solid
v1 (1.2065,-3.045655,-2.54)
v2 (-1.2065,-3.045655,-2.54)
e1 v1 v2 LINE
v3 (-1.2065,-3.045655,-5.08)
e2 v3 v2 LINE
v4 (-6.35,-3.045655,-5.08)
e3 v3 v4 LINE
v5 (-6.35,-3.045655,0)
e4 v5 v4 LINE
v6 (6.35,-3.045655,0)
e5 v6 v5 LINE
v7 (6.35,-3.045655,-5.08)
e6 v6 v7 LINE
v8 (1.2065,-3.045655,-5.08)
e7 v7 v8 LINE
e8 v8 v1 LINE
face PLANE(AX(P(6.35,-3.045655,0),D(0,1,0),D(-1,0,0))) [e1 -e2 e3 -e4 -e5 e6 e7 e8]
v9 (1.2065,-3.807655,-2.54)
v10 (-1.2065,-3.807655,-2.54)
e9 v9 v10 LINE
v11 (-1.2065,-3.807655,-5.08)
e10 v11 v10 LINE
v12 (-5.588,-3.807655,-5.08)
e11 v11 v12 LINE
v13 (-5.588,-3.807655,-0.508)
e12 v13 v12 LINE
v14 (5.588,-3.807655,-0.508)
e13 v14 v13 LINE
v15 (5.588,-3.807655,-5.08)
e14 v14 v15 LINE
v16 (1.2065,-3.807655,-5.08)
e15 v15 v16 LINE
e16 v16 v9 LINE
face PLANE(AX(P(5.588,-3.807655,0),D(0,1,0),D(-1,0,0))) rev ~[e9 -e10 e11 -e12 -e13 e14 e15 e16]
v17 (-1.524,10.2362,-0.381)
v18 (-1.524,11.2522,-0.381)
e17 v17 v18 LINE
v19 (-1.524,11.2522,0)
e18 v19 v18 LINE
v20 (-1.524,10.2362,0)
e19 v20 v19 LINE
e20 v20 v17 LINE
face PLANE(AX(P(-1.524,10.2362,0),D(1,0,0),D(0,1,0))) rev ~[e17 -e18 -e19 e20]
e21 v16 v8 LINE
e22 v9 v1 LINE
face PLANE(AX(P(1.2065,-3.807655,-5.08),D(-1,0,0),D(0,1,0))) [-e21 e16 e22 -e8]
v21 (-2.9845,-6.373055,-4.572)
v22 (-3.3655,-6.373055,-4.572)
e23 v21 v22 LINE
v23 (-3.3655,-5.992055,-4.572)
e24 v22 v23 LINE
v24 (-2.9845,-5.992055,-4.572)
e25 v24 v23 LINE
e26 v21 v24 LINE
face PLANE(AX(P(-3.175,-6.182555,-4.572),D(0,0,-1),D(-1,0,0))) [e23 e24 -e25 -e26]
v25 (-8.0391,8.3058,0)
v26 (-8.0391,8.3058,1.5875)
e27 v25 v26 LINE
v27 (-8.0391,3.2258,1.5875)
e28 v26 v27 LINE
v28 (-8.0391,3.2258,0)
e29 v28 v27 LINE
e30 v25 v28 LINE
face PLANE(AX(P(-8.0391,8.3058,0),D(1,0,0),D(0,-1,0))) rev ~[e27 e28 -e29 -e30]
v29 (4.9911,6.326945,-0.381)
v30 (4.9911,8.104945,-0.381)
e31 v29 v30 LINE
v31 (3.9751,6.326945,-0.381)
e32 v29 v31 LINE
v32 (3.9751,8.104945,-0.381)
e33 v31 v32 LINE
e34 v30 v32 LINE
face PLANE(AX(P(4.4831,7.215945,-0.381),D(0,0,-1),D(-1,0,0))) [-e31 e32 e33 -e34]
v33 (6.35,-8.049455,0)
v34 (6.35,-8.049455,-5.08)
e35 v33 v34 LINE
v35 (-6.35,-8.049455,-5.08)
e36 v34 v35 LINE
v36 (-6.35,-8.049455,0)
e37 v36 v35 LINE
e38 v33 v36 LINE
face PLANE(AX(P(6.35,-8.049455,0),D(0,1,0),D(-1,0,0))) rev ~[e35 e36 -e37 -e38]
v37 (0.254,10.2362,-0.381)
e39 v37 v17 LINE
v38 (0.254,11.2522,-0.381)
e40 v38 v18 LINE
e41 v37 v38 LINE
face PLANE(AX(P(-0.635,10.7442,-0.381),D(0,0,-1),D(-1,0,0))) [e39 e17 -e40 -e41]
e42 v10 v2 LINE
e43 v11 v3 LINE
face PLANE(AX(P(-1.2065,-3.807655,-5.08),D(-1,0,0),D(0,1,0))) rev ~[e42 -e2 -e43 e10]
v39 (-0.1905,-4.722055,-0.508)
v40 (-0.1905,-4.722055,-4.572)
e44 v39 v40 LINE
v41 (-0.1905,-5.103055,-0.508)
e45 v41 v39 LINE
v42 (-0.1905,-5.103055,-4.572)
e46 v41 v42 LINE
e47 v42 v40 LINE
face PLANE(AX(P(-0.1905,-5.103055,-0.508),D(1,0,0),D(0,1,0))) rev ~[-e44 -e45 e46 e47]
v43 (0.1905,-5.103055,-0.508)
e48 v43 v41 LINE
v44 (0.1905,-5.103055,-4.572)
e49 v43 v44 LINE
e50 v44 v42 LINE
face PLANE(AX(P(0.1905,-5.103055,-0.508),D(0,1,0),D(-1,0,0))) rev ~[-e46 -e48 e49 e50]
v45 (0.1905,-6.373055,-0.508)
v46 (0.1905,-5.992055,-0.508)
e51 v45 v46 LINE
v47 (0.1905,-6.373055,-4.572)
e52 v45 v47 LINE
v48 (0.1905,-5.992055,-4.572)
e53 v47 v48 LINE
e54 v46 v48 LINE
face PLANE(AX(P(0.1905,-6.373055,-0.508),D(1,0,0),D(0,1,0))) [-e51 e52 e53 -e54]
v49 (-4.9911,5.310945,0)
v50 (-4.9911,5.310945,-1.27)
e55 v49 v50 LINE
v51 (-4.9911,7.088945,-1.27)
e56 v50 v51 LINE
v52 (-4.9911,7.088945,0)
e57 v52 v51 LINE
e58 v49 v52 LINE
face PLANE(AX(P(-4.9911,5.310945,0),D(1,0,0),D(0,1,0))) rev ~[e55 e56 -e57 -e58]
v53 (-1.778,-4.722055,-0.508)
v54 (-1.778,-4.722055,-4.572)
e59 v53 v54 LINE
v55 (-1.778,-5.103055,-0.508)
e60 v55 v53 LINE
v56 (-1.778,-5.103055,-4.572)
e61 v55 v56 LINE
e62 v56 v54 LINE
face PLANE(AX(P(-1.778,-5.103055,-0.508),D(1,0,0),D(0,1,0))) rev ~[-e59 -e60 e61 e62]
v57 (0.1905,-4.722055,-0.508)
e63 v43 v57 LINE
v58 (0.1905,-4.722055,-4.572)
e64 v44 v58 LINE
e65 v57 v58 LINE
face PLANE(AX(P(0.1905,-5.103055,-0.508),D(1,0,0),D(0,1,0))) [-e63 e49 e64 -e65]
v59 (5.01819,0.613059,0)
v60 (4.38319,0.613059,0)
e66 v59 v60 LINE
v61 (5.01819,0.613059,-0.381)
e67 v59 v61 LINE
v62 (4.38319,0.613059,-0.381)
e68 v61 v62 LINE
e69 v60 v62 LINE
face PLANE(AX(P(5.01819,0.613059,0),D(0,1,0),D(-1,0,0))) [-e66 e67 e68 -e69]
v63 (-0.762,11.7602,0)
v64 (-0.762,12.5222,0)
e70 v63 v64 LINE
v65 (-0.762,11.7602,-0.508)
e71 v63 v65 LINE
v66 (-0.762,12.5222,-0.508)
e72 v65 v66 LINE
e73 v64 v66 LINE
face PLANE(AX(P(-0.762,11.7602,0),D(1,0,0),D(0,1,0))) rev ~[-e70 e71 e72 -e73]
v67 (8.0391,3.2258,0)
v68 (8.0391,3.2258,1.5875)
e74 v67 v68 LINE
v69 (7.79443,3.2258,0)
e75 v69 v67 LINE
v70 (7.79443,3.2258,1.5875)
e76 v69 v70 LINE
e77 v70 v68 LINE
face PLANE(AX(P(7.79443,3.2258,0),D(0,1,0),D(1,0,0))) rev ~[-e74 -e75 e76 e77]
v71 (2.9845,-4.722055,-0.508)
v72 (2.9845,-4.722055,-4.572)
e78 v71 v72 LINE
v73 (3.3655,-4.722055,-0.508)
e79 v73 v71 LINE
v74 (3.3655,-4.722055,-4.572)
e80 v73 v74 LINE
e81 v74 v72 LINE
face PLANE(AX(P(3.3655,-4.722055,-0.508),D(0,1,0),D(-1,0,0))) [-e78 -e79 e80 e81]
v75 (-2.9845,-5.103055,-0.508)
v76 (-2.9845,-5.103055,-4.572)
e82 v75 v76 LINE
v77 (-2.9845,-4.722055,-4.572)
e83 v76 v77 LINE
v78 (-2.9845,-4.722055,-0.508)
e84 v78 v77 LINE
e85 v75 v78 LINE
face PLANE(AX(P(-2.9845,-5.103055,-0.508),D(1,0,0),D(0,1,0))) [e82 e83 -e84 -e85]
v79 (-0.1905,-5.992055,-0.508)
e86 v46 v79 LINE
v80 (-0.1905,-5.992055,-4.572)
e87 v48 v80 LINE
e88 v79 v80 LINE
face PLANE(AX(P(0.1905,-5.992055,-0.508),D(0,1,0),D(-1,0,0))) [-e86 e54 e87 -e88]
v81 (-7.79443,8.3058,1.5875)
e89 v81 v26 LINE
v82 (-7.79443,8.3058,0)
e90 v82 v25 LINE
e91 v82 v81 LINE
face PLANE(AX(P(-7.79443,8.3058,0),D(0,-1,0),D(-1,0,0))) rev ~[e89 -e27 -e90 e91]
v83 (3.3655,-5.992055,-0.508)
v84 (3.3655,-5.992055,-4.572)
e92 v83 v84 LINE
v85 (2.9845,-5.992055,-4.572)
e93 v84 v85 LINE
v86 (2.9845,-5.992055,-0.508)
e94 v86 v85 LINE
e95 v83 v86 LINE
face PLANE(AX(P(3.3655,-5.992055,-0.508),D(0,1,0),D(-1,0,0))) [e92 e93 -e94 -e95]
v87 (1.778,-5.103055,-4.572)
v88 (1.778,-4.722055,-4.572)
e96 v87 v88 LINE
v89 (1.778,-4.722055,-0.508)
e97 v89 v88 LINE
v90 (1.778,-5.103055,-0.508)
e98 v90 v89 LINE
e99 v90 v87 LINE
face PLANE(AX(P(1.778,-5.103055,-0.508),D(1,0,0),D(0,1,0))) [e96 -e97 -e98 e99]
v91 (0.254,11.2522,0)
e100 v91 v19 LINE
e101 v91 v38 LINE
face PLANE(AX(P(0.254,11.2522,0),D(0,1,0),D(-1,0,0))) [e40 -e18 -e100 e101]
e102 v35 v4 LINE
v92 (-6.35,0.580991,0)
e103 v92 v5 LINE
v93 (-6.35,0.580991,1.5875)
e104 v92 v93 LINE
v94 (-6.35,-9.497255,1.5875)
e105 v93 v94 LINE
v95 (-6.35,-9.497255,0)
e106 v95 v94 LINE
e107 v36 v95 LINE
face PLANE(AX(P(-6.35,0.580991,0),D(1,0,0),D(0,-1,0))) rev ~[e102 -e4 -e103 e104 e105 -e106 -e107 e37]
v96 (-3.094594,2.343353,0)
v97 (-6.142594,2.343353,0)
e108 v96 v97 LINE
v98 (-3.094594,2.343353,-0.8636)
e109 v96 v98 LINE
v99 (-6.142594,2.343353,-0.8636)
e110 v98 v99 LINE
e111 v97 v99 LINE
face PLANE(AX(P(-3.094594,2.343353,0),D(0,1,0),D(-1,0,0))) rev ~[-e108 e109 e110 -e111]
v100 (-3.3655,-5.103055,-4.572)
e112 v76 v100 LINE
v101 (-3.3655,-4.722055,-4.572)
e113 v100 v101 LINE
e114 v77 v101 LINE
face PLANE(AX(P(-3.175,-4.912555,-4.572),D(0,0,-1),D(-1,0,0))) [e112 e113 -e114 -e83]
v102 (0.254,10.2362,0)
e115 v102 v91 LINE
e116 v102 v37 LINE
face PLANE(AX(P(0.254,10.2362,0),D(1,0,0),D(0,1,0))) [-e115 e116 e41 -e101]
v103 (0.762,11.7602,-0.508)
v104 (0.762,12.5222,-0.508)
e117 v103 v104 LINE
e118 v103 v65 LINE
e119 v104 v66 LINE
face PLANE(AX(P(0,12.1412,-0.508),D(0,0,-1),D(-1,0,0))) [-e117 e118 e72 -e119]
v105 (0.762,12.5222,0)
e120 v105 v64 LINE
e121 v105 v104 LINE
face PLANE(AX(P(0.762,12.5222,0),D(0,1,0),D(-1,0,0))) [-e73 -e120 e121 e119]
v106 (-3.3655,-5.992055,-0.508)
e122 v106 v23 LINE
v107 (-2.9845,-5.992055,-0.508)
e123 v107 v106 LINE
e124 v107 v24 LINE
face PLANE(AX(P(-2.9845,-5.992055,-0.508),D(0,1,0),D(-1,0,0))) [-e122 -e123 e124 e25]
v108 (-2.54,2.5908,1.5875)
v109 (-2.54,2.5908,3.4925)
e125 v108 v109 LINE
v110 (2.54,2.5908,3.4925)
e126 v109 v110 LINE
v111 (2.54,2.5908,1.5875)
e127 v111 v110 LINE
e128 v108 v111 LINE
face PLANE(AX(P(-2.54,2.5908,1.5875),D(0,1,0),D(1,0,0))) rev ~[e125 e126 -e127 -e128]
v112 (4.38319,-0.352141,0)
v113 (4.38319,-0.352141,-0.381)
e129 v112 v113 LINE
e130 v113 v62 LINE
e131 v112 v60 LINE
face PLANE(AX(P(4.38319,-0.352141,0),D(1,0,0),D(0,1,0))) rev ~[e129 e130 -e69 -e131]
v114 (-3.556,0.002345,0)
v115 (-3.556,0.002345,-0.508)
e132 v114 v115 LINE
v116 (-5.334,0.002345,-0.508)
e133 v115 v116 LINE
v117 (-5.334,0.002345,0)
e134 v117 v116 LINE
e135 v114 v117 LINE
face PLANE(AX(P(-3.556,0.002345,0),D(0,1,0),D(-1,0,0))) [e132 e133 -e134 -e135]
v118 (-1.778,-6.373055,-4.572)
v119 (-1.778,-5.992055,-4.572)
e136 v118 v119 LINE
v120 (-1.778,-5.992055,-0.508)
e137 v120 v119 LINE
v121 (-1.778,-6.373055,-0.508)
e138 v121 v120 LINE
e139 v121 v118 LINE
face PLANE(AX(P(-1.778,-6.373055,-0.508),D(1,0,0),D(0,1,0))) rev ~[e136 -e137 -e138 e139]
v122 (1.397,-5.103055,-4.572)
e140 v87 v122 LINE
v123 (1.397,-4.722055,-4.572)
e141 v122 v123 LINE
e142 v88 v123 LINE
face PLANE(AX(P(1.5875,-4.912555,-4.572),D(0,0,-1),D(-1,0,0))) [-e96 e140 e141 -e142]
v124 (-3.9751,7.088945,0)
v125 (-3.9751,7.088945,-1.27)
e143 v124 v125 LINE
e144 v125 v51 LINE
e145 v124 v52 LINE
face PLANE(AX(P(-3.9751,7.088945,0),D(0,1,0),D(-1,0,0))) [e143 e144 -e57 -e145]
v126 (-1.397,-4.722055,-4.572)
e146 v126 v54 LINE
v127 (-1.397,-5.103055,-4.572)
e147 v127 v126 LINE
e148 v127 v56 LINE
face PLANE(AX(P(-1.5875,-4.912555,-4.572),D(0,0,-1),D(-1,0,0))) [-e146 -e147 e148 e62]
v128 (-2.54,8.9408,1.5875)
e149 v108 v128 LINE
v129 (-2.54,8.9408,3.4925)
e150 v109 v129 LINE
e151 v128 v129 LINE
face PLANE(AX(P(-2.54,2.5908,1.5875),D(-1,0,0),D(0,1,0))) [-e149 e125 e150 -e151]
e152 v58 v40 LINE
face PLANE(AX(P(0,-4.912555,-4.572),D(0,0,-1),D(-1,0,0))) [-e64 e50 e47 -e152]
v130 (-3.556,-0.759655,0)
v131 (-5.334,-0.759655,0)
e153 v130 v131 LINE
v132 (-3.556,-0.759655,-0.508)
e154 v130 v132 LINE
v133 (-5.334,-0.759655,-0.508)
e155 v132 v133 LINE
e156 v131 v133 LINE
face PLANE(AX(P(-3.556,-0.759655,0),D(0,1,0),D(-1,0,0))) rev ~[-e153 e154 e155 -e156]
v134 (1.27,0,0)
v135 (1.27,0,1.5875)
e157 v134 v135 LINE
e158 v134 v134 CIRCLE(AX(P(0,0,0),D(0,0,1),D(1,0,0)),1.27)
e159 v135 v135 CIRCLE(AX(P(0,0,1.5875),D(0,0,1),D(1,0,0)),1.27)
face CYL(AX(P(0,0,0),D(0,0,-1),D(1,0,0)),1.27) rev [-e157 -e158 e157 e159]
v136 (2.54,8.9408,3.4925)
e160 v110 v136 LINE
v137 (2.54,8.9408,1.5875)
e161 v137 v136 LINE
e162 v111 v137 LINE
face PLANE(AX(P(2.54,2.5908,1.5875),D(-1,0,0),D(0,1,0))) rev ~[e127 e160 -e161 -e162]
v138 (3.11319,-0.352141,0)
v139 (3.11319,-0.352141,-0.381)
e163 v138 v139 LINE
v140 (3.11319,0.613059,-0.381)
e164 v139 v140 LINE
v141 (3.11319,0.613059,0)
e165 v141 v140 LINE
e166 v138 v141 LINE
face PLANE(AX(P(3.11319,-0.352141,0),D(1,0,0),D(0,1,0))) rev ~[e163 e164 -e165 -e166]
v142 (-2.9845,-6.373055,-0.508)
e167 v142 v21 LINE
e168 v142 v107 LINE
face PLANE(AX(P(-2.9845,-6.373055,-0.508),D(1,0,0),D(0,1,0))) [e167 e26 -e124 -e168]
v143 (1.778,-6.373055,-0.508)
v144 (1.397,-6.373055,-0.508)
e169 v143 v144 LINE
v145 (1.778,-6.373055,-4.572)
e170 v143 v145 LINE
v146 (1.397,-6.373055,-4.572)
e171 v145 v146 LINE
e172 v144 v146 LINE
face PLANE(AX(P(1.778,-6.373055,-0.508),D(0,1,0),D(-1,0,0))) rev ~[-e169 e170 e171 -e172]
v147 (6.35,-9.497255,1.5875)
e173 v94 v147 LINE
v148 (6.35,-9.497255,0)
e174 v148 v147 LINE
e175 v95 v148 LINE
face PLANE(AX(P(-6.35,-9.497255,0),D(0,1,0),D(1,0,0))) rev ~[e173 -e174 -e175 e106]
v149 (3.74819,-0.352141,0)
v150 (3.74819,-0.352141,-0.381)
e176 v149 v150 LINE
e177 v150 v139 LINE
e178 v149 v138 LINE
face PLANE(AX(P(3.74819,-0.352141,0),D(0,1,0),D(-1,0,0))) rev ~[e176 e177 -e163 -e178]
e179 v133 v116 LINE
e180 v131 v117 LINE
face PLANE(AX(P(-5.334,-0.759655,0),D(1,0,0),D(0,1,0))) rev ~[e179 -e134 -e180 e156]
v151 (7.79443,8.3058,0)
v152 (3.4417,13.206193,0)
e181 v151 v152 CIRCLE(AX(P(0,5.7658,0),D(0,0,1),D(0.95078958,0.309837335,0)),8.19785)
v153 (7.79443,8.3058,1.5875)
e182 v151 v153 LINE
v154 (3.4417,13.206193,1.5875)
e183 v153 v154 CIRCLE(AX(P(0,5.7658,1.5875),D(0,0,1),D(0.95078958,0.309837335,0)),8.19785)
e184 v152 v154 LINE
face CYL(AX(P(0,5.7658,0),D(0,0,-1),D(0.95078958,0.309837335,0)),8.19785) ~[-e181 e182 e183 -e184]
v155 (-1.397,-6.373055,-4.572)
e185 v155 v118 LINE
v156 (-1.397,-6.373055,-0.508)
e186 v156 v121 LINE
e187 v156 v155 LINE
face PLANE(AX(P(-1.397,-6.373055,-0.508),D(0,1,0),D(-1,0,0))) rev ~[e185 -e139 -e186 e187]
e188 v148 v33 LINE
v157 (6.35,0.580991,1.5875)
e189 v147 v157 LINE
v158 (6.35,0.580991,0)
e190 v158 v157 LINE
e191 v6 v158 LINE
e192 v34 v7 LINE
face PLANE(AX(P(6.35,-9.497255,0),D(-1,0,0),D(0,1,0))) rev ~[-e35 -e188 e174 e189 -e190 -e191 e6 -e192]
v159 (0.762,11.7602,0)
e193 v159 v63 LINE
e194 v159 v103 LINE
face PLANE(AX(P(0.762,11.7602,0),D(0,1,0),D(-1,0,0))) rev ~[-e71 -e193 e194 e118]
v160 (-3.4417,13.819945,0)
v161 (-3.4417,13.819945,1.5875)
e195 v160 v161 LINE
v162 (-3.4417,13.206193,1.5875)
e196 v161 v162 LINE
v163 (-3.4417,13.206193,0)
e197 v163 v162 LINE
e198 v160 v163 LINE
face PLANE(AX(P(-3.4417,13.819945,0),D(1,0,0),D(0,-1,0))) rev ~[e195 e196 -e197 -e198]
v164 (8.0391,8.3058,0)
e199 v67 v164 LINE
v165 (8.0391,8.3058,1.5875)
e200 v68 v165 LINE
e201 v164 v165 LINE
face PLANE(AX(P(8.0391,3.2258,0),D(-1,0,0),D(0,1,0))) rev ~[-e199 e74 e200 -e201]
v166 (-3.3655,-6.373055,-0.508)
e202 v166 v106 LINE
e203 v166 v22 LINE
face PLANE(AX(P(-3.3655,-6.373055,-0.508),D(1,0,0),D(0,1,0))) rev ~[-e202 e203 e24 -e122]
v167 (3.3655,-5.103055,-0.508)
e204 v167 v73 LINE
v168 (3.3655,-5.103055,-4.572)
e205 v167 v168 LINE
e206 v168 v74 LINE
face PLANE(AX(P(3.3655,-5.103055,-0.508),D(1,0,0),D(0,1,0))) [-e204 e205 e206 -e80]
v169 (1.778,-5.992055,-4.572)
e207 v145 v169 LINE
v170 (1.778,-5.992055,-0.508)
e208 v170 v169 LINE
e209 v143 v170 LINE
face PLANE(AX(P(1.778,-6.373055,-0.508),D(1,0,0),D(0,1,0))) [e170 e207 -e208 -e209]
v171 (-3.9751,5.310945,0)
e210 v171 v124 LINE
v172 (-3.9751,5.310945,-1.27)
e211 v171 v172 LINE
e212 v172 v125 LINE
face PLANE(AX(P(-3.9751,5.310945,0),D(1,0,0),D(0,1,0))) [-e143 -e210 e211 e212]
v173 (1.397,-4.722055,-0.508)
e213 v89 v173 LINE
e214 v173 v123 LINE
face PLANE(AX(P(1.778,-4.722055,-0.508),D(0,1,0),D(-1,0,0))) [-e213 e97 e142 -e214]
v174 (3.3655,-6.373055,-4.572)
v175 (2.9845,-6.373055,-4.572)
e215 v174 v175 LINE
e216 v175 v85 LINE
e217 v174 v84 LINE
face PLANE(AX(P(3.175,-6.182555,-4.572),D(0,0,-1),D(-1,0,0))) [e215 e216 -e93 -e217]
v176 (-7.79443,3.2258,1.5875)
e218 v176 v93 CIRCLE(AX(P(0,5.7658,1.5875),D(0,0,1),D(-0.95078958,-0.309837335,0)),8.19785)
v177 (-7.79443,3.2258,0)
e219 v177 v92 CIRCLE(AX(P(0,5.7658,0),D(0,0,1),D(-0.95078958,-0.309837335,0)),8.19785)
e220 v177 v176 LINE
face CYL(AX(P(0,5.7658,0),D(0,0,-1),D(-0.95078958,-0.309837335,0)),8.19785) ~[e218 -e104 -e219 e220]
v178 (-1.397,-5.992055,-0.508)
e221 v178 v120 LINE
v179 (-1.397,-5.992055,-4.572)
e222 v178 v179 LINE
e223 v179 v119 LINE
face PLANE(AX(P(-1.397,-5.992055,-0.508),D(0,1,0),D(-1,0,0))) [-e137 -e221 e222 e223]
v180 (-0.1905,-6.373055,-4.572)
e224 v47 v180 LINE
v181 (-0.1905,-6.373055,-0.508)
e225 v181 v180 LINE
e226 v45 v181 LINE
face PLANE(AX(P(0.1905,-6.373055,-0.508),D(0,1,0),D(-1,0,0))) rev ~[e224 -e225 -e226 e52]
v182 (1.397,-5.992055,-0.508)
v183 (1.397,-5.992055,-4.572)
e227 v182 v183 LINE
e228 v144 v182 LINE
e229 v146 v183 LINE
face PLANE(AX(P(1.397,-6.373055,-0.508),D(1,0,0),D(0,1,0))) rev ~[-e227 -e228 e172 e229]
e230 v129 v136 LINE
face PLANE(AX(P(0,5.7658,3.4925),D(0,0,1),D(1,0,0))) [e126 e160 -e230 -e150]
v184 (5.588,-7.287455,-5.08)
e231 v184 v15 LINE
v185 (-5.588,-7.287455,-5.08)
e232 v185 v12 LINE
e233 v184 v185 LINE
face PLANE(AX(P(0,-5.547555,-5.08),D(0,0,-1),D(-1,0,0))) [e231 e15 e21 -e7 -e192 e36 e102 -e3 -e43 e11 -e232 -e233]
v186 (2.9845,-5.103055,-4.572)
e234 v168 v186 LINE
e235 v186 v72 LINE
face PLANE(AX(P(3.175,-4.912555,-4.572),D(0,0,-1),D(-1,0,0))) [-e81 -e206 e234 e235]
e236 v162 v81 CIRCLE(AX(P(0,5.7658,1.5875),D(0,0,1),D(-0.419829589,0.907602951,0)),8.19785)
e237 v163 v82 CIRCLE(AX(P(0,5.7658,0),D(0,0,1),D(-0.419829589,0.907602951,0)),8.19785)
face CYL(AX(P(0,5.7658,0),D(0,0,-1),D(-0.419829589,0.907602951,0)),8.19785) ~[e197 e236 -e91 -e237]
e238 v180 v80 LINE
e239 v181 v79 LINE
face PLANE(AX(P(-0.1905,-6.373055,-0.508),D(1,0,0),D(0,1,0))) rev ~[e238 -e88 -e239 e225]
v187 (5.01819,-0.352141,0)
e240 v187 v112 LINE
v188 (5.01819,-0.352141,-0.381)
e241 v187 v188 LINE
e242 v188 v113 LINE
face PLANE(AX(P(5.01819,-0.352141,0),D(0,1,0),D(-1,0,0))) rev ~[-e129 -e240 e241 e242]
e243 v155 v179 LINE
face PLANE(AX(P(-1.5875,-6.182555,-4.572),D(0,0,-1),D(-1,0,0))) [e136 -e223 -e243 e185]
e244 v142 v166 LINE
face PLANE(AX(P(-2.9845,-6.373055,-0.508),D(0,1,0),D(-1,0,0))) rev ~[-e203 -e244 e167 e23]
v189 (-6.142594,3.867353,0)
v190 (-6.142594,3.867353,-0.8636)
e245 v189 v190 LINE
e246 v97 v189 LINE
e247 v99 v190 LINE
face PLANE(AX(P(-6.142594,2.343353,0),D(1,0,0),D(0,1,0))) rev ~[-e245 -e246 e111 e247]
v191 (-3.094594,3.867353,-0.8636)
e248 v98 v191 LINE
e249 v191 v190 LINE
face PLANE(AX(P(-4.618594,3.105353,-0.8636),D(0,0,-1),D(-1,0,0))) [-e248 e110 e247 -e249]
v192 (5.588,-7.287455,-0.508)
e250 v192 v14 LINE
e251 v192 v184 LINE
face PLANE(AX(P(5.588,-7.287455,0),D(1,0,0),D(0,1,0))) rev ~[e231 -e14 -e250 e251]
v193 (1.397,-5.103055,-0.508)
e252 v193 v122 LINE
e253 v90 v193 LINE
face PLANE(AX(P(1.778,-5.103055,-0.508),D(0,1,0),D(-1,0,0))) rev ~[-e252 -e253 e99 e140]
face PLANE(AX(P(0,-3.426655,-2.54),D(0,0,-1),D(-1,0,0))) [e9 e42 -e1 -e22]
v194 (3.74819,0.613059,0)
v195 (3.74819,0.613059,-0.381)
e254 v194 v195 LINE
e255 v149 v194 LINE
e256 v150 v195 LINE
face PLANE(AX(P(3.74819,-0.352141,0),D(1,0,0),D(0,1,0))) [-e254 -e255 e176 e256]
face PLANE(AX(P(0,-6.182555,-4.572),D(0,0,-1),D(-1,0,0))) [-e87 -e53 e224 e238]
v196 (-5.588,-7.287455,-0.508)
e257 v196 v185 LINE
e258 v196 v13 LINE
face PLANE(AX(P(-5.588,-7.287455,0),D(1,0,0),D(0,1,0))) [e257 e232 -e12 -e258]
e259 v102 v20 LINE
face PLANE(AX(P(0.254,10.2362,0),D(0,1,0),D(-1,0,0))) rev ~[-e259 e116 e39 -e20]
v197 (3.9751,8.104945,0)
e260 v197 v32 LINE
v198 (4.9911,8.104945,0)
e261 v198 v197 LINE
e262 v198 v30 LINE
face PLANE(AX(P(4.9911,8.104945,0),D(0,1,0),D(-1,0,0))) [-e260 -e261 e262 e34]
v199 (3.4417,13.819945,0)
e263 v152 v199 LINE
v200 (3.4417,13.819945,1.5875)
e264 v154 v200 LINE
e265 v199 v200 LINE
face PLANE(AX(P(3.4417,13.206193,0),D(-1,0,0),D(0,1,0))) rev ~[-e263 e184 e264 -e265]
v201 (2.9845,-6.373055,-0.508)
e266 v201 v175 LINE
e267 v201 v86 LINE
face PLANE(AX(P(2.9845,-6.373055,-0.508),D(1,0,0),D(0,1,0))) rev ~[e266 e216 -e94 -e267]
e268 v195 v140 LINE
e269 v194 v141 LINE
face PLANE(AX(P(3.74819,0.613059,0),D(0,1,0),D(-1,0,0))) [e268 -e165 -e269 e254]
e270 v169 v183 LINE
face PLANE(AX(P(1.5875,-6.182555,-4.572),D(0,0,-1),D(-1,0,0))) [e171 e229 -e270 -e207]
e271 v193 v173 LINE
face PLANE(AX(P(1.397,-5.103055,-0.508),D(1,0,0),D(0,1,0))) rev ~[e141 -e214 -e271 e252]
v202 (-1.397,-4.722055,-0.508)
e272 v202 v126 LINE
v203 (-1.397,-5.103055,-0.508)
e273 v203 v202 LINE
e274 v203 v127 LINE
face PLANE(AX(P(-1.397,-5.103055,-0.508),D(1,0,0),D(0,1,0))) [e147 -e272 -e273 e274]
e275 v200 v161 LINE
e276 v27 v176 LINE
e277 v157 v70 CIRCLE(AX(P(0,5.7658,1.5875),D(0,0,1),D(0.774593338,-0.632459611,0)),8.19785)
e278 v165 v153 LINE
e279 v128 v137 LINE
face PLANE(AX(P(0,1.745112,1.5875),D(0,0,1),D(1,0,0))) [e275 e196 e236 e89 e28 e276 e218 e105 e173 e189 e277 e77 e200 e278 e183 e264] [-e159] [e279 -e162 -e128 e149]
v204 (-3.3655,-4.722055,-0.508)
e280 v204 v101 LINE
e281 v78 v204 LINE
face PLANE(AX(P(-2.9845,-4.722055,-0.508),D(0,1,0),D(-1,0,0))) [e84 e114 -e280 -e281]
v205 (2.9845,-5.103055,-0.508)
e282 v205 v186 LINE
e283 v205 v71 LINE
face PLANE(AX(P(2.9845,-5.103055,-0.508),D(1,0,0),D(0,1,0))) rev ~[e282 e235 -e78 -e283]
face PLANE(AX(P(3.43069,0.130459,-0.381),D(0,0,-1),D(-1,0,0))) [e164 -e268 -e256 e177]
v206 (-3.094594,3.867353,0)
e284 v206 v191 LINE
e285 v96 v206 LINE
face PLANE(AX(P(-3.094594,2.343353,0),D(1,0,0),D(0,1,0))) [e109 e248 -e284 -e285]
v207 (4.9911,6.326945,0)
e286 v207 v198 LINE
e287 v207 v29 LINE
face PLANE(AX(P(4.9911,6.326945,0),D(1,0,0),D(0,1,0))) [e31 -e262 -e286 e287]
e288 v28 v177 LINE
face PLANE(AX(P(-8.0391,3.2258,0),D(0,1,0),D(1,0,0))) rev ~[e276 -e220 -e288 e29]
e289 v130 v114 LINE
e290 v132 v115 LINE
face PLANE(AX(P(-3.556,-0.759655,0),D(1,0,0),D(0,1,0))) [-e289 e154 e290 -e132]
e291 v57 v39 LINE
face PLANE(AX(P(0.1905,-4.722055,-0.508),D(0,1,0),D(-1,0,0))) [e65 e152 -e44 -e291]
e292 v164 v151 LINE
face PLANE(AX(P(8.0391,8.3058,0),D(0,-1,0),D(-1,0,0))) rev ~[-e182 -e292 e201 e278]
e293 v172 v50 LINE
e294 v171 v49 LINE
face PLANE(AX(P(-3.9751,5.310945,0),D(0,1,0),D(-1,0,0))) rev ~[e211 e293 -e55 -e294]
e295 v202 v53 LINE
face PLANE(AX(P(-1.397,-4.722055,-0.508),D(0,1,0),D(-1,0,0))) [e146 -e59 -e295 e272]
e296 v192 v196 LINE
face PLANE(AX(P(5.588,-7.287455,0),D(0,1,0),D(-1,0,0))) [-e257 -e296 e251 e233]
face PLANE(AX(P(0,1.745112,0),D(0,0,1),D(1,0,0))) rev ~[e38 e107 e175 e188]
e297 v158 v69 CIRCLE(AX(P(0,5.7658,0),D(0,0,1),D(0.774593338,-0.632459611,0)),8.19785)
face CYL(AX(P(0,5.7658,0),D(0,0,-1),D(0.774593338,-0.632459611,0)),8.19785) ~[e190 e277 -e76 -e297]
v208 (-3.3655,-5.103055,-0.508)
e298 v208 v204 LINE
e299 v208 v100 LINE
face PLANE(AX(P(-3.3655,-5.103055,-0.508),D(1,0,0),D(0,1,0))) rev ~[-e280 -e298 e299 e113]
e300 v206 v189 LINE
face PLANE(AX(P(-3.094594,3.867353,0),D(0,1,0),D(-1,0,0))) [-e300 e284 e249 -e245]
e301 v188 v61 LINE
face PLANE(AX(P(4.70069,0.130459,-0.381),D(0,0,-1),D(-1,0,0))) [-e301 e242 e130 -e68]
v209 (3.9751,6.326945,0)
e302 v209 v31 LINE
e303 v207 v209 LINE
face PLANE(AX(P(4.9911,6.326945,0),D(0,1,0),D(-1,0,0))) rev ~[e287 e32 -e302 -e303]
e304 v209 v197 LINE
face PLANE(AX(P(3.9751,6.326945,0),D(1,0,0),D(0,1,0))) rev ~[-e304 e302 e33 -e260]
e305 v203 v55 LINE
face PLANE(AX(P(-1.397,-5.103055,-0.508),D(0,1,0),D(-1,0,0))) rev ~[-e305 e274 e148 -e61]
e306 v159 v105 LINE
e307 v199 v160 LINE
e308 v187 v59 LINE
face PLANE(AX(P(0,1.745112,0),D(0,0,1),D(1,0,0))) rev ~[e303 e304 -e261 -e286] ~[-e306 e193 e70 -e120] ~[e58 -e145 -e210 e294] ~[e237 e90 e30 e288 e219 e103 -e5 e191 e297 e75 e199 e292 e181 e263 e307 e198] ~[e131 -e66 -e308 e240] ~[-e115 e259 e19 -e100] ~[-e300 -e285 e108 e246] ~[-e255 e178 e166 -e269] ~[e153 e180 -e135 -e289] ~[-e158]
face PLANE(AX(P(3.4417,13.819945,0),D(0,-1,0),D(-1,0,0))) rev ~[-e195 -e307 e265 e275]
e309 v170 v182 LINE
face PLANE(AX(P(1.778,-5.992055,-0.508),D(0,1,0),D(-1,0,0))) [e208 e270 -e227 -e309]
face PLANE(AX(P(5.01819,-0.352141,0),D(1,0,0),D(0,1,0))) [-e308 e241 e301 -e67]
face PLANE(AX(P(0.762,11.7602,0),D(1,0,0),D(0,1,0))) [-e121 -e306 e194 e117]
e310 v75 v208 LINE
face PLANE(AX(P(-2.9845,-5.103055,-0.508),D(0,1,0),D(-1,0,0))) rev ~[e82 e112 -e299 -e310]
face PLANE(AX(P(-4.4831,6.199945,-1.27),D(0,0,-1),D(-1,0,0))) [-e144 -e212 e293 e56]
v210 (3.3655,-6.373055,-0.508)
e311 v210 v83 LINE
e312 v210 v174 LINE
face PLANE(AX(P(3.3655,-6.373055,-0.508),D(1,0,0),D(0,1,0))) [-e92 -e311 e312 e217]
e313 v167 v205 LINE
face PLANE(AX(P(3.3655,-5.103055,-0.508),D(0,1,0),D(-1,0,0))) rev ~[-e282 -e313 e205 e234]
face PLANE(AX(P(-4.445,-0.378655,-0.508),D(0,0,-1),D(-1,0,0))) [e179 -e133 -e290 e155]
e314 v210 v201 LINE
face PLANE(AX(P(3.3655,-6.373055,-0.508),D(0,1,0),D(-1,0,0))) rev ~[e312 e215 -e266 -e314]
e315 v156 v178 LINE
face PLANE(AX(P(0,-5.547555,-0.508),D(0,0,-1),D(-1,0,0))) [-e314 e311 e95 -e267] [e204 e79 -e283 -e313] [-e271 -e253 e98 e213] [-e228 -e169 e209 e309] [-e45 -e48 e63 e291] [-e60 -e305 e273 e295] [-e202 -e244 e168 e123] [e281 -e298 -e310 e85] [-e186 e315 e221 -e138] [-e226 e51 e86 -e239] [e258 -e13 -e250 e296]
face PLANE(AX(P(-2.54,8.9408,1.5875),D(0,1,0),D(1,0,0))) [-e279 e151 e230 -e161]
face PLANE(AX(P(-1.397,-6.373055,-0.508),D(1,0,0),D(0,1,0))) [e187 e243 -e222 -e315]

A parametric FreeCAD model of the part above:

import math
import FreeCAD as App
import Part
import Sketcher
from FreeCAD import Vector
Q = App.Units.Quantity


def add_polygon(sketch, points):
    """Adds a closed chain of lines whose ends are joined by coincident constraints."""
    first, n = sketch.GeometryCount, len(points)
    for a, b in zip(points, points[1:] + points[:1]):
        sketch.addGeometry(Part.LineSegment(App.Vector(*a, 0), App.Vector(*b, 0)), False)
    for i in range(n):
        sketch.addConstraint(Sketcher.Constraint("Coincident", first + i, 2, first + (i + 1) % n, 1))

doc = App.newDocument("Part")
params = doc.addObject("Spreadsheet::Sheet", "Params")
for row, (alias, value) in enumerate([
    ("sketch1_diameter", "0.1 in"),
    ("sketch1_width", "0.5 in"),
    ("sketch1_height", "0.2 in"),
    ("sketch1_width2", "0.271 in"),
    ("pad1_length", "0.0625 in"),
    ("sketch2_width", "0.5 in"),
    ("sketch2_width2", "0.44 in"),
    ("sketch2_height", "0.197 in"),
    ("sketch2_height2", "0.137 in"),
    ("pad2_length", "0.2 in"),
    ("sketch3_height", "0.03 in"),
    ("sketch3_width", "0.095 in"),
    ("pocket1_length", "0.1 in"),
    ("sketch4_width", "0.2 in"),
    ("sketch4_height", "0.25 in"),
    ("pad3_length", "0.075 in"),
    ("sketch5_width", "0.44 in"),
    ("sketch5_height", "0.137 in"),
    ("pad4_length", "0.02 in"),
    ("sketch6_width", "0.015 in"),
    ("pad5_length", "0.16 in"),
    ("linearpattern_pitch", "0.0625 in"),
    ("sketch7_width", "0.12 in"),
    ("sketch7_height", "0.06 in"),
    ("pad6_length", "0.034 in"),
    ("sketch8_width", "0.06 in"),
    ("sketch8_height", "0.03 in"),
    ("pad7_length", "0.02 in"),
    ("sketch9_width", "0.07 in"),
    ("sketch9_height", "0.03 in"),
    ("pad8_length", "0.02 in"),
    ("sketch10_width", "0.025 in"),
    ("sketch10_height", "0.038 in"),
    ("pad9_length", "0.015 in"),
    ("sketch11_width", "0.025 in"),
    ("sketch11_height", "0.038 in"),
    ("pad10_length", "0.015 in"),
    ("sketch12_width", "0.04 in"),
    ("sketch12_height", "0.07 in"),
    ("pad11_length", "0.05 in"),
    ("sketch13_width", "0.07 in"),
    ("sketch13_height", "0.04 in"),
    ("pad12_length", "0.015 in"),
    ("sketch14_width", "0.04 in"),
    ("sketch14_height", "0.07 in"),
    ("pad13_length", "0.015 in"),
], start=1):
    params.set(f"A{row}", alias)
    params.set(f"B{row}", "=" + value)
    params.setAlias(f"B{row}", alias)

body = doc.addObject("PartDesign::Body", "Body")

sketch1 = body.newObject("Sketcher::SketchObject", "Sketch")
sketch1.AttachmentSupport = (doc.getObject("XY_Plane"), [""])
sketch1.MapMode = "FlatFace"
sketch1.addGeometry([
    Part.LineSegment(Vector(-6.35, -9.497255, 0), Vector(6.35, -9.497255, 0)),
    Part.LineSegment(Vector(6.35, -9.497255, 0), Vector(6.35, 0.580991, 0)),
    Part.ArcOfCircle(Part.Circle(Vector(0, 5.7658, 0), Vector(0, 0, 1), 8.19785), math.radians(-39.231822), math.radians(-18.049428)),
    Part.LineSegment(Vector(7.79443, 3.2258, 0), Vector(8.0391, 3.2258, 0)),
    Part.LineSegment(Vector(8.0391, 3.2258, 0), Vector(8.0391, 8.3058, 0)),
    Part.LineSegment(Vector(8.0391, 8.3058, 0), Vector(7.79443, 8.3058, 0)),
    Part.ArcOfCircle(Part.Circle(Vector(0, 5.7658, 0), Vector(0, 0, 1), 8.19785), math.radians(18.049428), math.radians(65.176171)),
    Part.LineSegment(Vector(3.4417, 13.206193, 0), Vector(3.4417, 13.819945, 0)),
    Part.LineSegment(Vector(3.4417, 13.819945, 0), Vector(-3.4417, 13.819945, 0)),
    Part.LineSegment(Vector(-3.4417, 13.819945, 0), Vector(-3.4417, 13.206193, 0)),
    Part.ArcOfCircle(Part.Circle(Vector(0, 5.7658, 0), Vector(0, 0, 1), 8.19785), math.radians(114.823829), math.radians(161.950572)),
    Part.LineSegment(Vector(-7.79443, 8.3058, 0), Vector(-8.0391, 8.3058, 0)),
    Part.LineSegment(Vector(-8.0391, 8.3058, 0), Vector(-8.0391, 3.2258, 0)),
    Part.LineSegment(Vector(-8.0391, 3.2258, 0), Vector(-7.79443, 3.2258, 0)),
    Part.ArcOfCircle(Part.Circle(Vector(0, 5.7658, 0), Vector(0, 0, 1), 8.19785), math.radians(-161.950572), math.radians(-140.768178)),
    Part.LineSegment(Vector(-6.35, 0.580991, 0), Vector(-6.35, -9.497255, 0)),
    Part.Circle(Vector(0, 0, 0), Vector(0, 0, 1), 1.27),
], False)
sketch1.addConstraint([
    Sketcher.Constraint("Coincident", 0, 2, 1, 1),
    Sketcher.Constraint("Coincident", 1, 2, 2, 1),
    Sketcher.Constraint("Coincident", 2, 2, 3, 1),
    Sketcher.Constraint("Coincident", 3, 2, 4, 1),
    Sketcher.Constraint("Coincident", 4, 2, 5, 1),
    Sketcher.Constraint("Coincident", 5, 2, 6, 1),
    Sketcher.Constraint("Coincident", 6, 2, 7, 1),
    Sketcher.Constraint("Coincident", 7, 2, 8, 1),
    Sketcher.Constraint("Coincident", 8, 2, 9, 1),
    Sketcher.Constraint("Coincident", 9, 2, 10, 1),
    Sketcher.Constraint("Coincident", 10, 2, 11, 1),
    Sketcher.Constraint("Coincident", 11, 2, 12, 1),
    Sketcher.Constraint("Coincident", 12, 2, 13, 1),
    Sketcher.Constraint("Coincident", 13, 2, 14, 1),
    Sketcher.Constraint("Coincident", 14, 2, 15, 1),
    Sketcher.Constraint("Coincident", 15, 2, 0, 1),
    Sketcher.Constraint("Horizontal", 0),
    Sketcher.Constraint("Vertical", 1),
    Sketcher.Constraint("Horizontal", 3),
    Sketcher.Constraint("Vertical", 4),
    Sketcher.Constraint("Horizontal", 5),
    Sketcher.Constraint("Vertical", 7),
    Sketcher.Constraint("Horizontal", 8),
    Sketcher.Constraint("Vertical", 9),
    Sketcher.Constraint("Horizontal", 11),
    Sketcher.Constraint("Vertical", 12),
    Sketcher.Constraint("Horizontal", 13),
    Sketcher.Constraint("Vertical", 15),
    Sketcher.Constraint("Coincident", 16, 3, -1, 1),
    Sketcher.Constraint("Coincident", 6, 3, 2, 3),
    Sketcher.Constraint("Coincident", 10, 3, 2, 3),
    Sketcher.Constraint("Coincident", 14, 3, 2, 3),
    Sketcher.Constraint("Equal", 2, 6),
    Sketcher.Constraint("Equal", 6, 10),
    Sketcher.Constraint("Equal", 10, 14),
    Sketcher.Constraint("Symmetric", 6, 2, 9, 2, -2),
    Sketcher.Constraint("Symmetric", 4, 2, 11, 2, -2),
    Sketcher.Constraint("Horizontal", 3, 2, 12, 2),
    Sketcher.Constraint("Horizontal", 1, 2, 14, 2),
    Sketcher.Constraint("Vertical", 2, 2, 5, 2),
    Sketcher.Constraint("Diameter", 16, Q("0.1 in")),
    Sketcher.Constraint("DistanceX", 0, 1, 0, 2, Q("0.5 in")),
    Sketcher.Constraint("DistanceY", 4, 1, 4, 2, Q("0.2 in")),
    Sketcher.Constraint("DistanceX", 8, 2, 8, 1, Q("0.271 in")),
    Sketcher.Constraint("DistanceY", -1, 1, 2, 3, Q("0.227 in")),
    Sketcher.Constraint("Radius", 2, 8.19785),
    Sketcher.Constraint("DistanceX", 6, 2, 4, 2, Q("0.181 in")),
    Sketcher.Constraint("DistanceY", 1, 1, 1, 2, 10.078246),
    Sketcher.Constraint("DistanceY", 7, 1, 7, 2, 0.613752),
])
sketch1.setExpression("Constraints[40]", "Params.sketch1_diameter")
sketch1.setExpression("Constraints[41]", "Params.sketch1_width")
sketch1.setExpression("Constraints[42]", "Params.sketch1_height")
sketch1.setExpression("Constraints[43]", "Params.sketch1_width2")
pad1 = body.newObject("PartDesign::Pad", "Pad")
pad1.Profile = sketch1
pad1.setExpression("Length", "Params.pad1_length")
body2 = doc.addObject("PartDesign::Body", "Body001")

sketch2 = body2.newObject("Sketcher::SketchObject", "Sketch001")
sketch2.AttachmentSupport = (doc.getObject("XY_Plane001"), [""])
sketch2.MapMode = "FlatFace"
add_polygon(sketch2, [(6.35, -3.045655), (6.35, -8.049455), (-6.35, -8.049455), (-6.35, -3.045655)])
add_polygon(sketch2, [(-5.588, -7.287455), (5.588, -7.287455), (5.588, -3.807655), (-5.588, -3.807655)])
sketch2.addConstraint([
    Sketcher.Constraint("Vertical", 0),
    Sketcher.Constraint("Horizontal", 1),
    Sketcher.Constraint("Vertical", 2),
    Sketcher.Constraint("Horizontal", 3),
    Sketcher.Constraint("Horizontal", 4),
    Sketcher.Constraint("Vertical", 5),
    Sketcher.Constraint("Horizontal", 6),
    Sketcher.Constraint("Vertical", 7),
    Sketcher.Constraint("DistanceX", 1, 2, 1, 1, Q("0.5 in")),
    Sketcher.Constraint("DistanceX", 4, 1, 4, 2, Q("0.44 in")),
    Sketcher.Constraint("DistanceY", 0, 2, 0, 1, Q("0.197 in")),
    Sketcher.Constraint("DistanceY", 5, 1, 5, 2, Q("0.137 in")),
    Sketcher.Constraint("DistanceX", -1, 1, 0, 2, Q("0.25 in")),
    Sketcher.Constraint("DistanceX", -1, 1, 4, 2, Q("0.22 in")),
    Sketcher.Constraint("DistanceY", 0, 2, 4, 2, Q("0.03 in")),
    Sketcher.Constraint("DistanceY", 0, 2, -1, 1, 8.049455),
])
sketch2.setExpression("Constraints[16]", "Params.sketch2_width")
sketch2.setExpression("Constraints[17]", "Params.sketch2_width2")
sketch2.setExpression("Constraints[18]", "Params.sketch2_height")
sketch2.setExpression("Constraints[19]", "Params.sketch2_height2")
pad2 = body2.newObject("PartDesign::Pad", "Pad001")
pad2.Profile = sketch2
pad2.setExpression("Length", "Params.pad2_length")
pad2.Reversed = True

sketch3 = body2.newObject("Sketcher::SketchObject", "Sketch002")
sketch3.AttachmentSupport = (doc.getObject("XY_Plane001"), [""])
sketch3.MapMode = "FlatFace"
sketch3.AttachmentOffset = App.Placement(Vector(0, 0, -0.2 * 25.4), App.Rotation())
add_polygon(sketch3, [(1.2065, -3.045655), (1.2065, -3.807655), (-1.2065, -3.807655), (-1.2065, -3.045655)])
sketch3.addConstraint([
    Sketcher.Constraint("Vertical", 0),
    Sketcher.Constraint("Horizontal", 1),
    Sketcher.Constraint("Vertical", 2),
    Sketcher.Constraint("Horizontal", 3),
    Sketcher.Constraint("DistanceY", 0, 2, 0, 1, Q("0.03 in")),
    Sketcher.Constraint("DistanceX", 1, 2, 1, 1, Q("0.095 in")),
    Sketcher.Constraint("DistanceX", -1, 1, 0, 2, Q("0.0475 in")),
    Sketcher.Constraint("DistanceY", 0, 2, -1, 1, 3.807655),
])
sketch3.setExpression("Constraints[8]", "Params.sketch3_height")
sketch3.setExpression("Constraints[9]", "Params.sketch3_width")
pocket1 = body2.newObject("PartDesign::Pocket", "Pocket")
pocket1.Profile = sketch3
pocket1.setExpression("Length", "Params.pocket1_length")
pocket1.Reversed = True
body3 = doc.addObject("PartDesign::Body", "Body002")

sketch4 = body3.newObject("Sketcher::SketchObject", "Sketch003")
sketch4.AttachmentSupport = (doc.getObject("XY_Plane002"), [""])
sketch4.MapMode = "FlatFace"
sketch4.AttachmentOffset = App.Placement(Vector(0, 0, 0.0625 * 25.4), App.Rotation())
add_polygon(sketch4, [(-2.54, 8.9408), (-2.54, 2.5908), (2.54, 2.5908), (2.54, 8.9408)])
sketch4.addConstraint([
    Sketcher.Constraint("Vertical", 0),
    Sketcher.Constraint("Horizontal", 1),
    Sketcher.Constraint("Vertical", 2),
    Sketcher.Constraint("Horizontal", 3),
    Sketcher.Constraint("DistanceX", 1, 1, 1, 2, Q("0.2 in")),
    Sketcher.Constraint("DistanceY", 0, 2, 0, 1, Q("0.25 in")),
    Sketcher.Constraint("DistanceX", 0, 2, -1, 1, Q("0.1 in")),
    Sketcher.Constraint("DistanceY", -1, 1, 0, 2, Q("0.102 in")),
])
sketch4.setExpression("Constraints[8]", "Params.sketch4_width")
sketch4.setExpression("Constraints[9]", "Params.sketch4_height")
pad3 = body3.newObject("PartDesign::Pad", "Pad002")
pad3.Profile = sketch4
pad3.setExpression("Length", "Params.pad3_length")
body4 = doc.addObject("PartDesign::Body", "Body003")

sketch5 = body4.newObject("Sketcher::SketchObject", "Sketch004")
sketch5.AttachmentSupport = (doc.getObject("XY_Plane003"), [""])
sketch5.MapMode = "FlatFace"
add_polygon(sketch5, [(5.588, -3.807655), (5.588, -7.287455), (-5.588, -7.287455), (-5.588, -3.807655)])
sketch5.addConstraint([
    Sketcher.Constraint("Vertical", 0),
    Sketcher.Constraint("Horizontal", 1),
    Sketcher.Constraint("Vertical", 2),
    Sketcher.Constraint("Horizontal", 3),
    Sketcher.Constraint("DistanceX", 1, 2, 1, 1, Q("0.44 in")),
    Sketcher.Constraint("DistanceY", 0, 2, 0, 1, Q("0.137 in")),
    Sketcher.Constraint("DistanceX", -1, 1, 0, 2, Q("0.22 in")),
    Sketcher.Constraint("DistanceY", 0, 2, -1, 1, 7.287455),
])
sketch5.setExpression("Constraints[8]", "Params.sketch5_width")
sketch5.setExpression("Constraints[9]", "Params.sketch5_height")
pad4 = body4.newObject("PartDesign::Pad", "Pad003")
pad4.Profile = sketch5
pad4.setExpression("Length", "Params.pad4_length")
pad4.Reversed = True

sketch6 = body4.newObject("Sketcher::SketchObject", "Sketch005")
sketch6.AttachmentSupport = (doc.getObject("XY_Plane003"), [""])
sketch6.MapMode = "FlatFace"
sketch6.AttachmentOffset = App.Placement(Vector(0, 0, -0.02 * 25.4), App.Rotation())
add_polygon(sketch6, [(-2.9845, -4.722055), (-2.9845, -5.103055), (-3.3655, -5.103055), (-3.3655, -4.722055)])
add_polygon(sketch6, [(-2.9845, -5.992055), (-2.9845, -6.373055), (-3.3655, -6.373055), (-3.3655, -5.992055)])
sketch6.addConstraint([
    Sketcher.Constraint("Vertical", 0),
    Sketcher.Constraint("Horizontal", 1),
    Sketcher.Constraint("Vertical", 2),
    Sketcher.Constraint("Horizontal", 3),
    Sketcher.Constraint("Vertical", 4),
    Sketcher.Constraint("Horizontal", 5),
    Sketcher.Constraint("Vertical", 6),
    Sketcher.Constraint("Horizontal", 7),
    Sketcher.Constraint("Vertical", 3, 2, 4, 2),
    Sketcher.Constraint("Vertical", 2, 2, 5, 2),
    Sketcher.Constraint("Equal", 7, 0),
    Sketcher.Constraint("Equal", 2, 4),
    Sketcher.Constraint("DistanceX", 1, 2, 1, 1, Q("0.015 in")),
    Sketcher.Constraint("DistanceY", 4, 2, 0, 2, Q("0.05 in")),
    Sketcher.Constraint("DistanceX", 0, 2, -1, 1, Q("0.1175 in")),
    Sketcher.Constraint("DistanceY", 0, 2, -1, 1, 5.103055),
])
sketch6.setExpression("Constraints[20]", "Params.sketch6_width")
pad5 = body4.newObject("PartDesign::Pad", "Pad004")
pad5.Profile = sketch6
pad5.setExpression("Length", "Params.pad5_length")
pad5.Reversed = True
doc.recompute()

linearpattern = body4.newObject("PartDesign::LinearPattern", "LinearPattern")
linearpattern.Originals = [pad5]
linearpattern.Direction = (doc.getObject("X_Axis003"), [""])
linearpattern.Mode = "offset"
linearpattern.setExpression("Offset", "Params.linearpattern_pitch")
linearpattern.Occurrences = 5
body4.Tip = linearpattern
body5 = doc.addObject("PartDesign::Body", "Body004")

sketch7 = body5.newObject("Sketcher::SketchObject", "Sketch006")
sketch7.AttachmentSupport = (doc.getObject("XY_Plane004"), [""])
sketch7.MapMode = "FlatFace"
add_polygon(sketch7, [(-3.094594, 3.867353), (-3.094594, 2.343353), (-6.142594, 2.343353), (-6.142594, 3.867353)])
sketch7.addConstraint([
    Sketcher.Constraint("Vertical", 0),
    Sketcher.Constraint("Horizontal", 1),
    Sketcher.Constraint("Vertical", 2),
    Sketcher.Constraint("Horizontal", 3),
    Sketcher.Constraint("DistanceX", 1, 2, 1, 1, Q("0.12 in")),
    Sketcher.Constraint("DistanceY", 0, 2, 0, 1, Q("0.06 in")),
    Sketcher.Constraint("DistanceX", 0, 2, -1, 1, 3.094594),
    Sketcher.Constraint("DistanceY", -1, 1, 0, 2, 2.343353),
])
sketch7.setExpression("Constraints[8]", "Params.sketch7_width")
sketch7.setExpression("Constraints[9]", "Params.sketch7_height")
pad6 = body5.newObject("PartDesign::Pad", "Pad005")
pad6.Profile = sketch7
pad6.setExpression("Length", "Params.pad6_length")
pad6.Reversed = True
body6 = doc.addObject("PartDesign::Body", "Body005")

sketch8 = body6.newObject("Sketcher::SketchObject", "Sketch007")
sketch8.AttachmentSupport = (doc.getObject("XY_Plane005"), [""])
sketch8.MapMode = "FlatFace"
add_polygon(sketch8, [(0.762, 12.5222), (0.762, 11.7602), (-0.762, 11.7602), (-0.762, 12.5222)])
sketch8.addConstraint([
    Sketcher.Constraint("Vertical", 0),
    Sketcher.Constraint("Horizontal", 1),
    Sketcher.Constraint("Vertical", 2),
    Sketcher.Constraint("Horizontal", 3),
    Sketcher.Constraint("DistanceX", 1, 2, 1, 1, Q("0.06 in")),
    Sketcher.Constraint("DistanceY", 0, 2, 0, 1, Q("0.03 in")),
    Sketcher.Constraint("DistanceX", -1, 1, 0, 2, Q("0.03 in")),
    Sketcher.Constraint("DistanceY", -1, 1, 0, 2, Q("0.463 in")),
])
sketch8.setExpression("Constraints[8]", "Params.sketch8_width")
sketch8.setExpression("Constraints[9]", "Params.sketch8_height")
pad7 = body6.newObject("PartDesign::Pad", "Pad006")
pad7.Profile = sketch8
pad7.setExpression("Length", "Params.pad7_length")
pad7.Reversed = True
body7 = doc.addObject("PartDesign::Body", "Body006")

sketch9 = body7.newObject("Sketcher::SketchObject", "Sketch008")
sketch9.AttachmentSupport = (doc.getObject("XY_Plane006"), [""])
sketch9.MapMode = "FlatFace"
add_polygon(sketch9, [(-3.556, 0.002345), (-3.556, -0.759655), (-5.334, -0.759655), (-5.334, 0.002345)])
sketch9.addConstraint([
    Sketcher.Constraint("Vertical", 0),
    Sketcher.Constraint("Horizontal", 1),
    Sketcher.Constraint("Vertical", 2),
    Sketcher.Constraint("Horizontal", 3),
    Sketcher.Constraint("DistanceX", 1, 2, 1, 1, Q("0.07 in")),
    Sketcher.Constraint("DistanceY", 0, 2, 0, 1, Q("0.03 in")),
    Sketcher.Constraint("DistanceX", 0, 2, -1, 1, Q("0.14 in")),
    Sketcher.Constraint("DistanceY", 0, 2, -1, 1, 0.759655),
])
sketch9.setExpression("Constraints[8]", "Params.sketch9_width")
sketch9.setExpression("Constraints[9]", "Params.sketch9_height")
pad8 = body7.newObject("PartDesign::Pad", "Pad007")
pad8.Profile = sketch9
pad8.setExpression("Length", "Params.pad8_length")
pad8.Reversed = True
body8 = doc.addObject("PartDesign::Body", "Body007")

sketch10 = body8.newObject("Sketcher::SketchObject", "Sketch009")
sketch10.AttachmentSupport = (doc.getObject("XY_Plane007"), [""])
sketch10.MapMode = "FlatFace"
add_polygon(sketch10, [(5.01819, 0.613059), (5.01819, -0.352141), (4.38319, -0.352141), (4.38319, 0.613059)])
sketch10.addConstraint([
    Sketcher.Constraint("Vertical", 0),
    Sketcher.Constraint("Horizontal", 1),
    Sketcher.Constraint("Vertical", 2),
    Sketcher.Constraint("Horizontal", 3),
    Sketcher.Constraint("DistanceX", 1, 2, 1, 1, Q("0.025 in")),
    Sketcher.Constraint("DistanceY", 0, 2, 0, 1, Q("0.038 in")),
    Sketcher.Constraint("DistanceX", -1, 1, 0, 2, 5.01819),
    Sketcher.Constraint("DistanceY", 0, 2, -1, 1, 0.352141),
])
sketch10.setExpression("Constraints[8]", "Params.sketch10_width")
sketch10.setExpression("Constraints[9]", "Params.sketch10_height")
pad9 = body8.newObject("PartDesign::Pad", "Pad008")
pad9.Profile = sketch10
pad9.setExpression("Length", "Params.pad9_length")
pad9.Reversed = True
body9 = doc.addObject("PartDesign::Body", "Body008")

sketch11 = body9.newObject("Sketcher::SketchObject", "Sketch010")
sketch11.AttachmentSupport = (doc.getObject("XY_Plane008"), [""])
sketch11.MapMode = "FlatFace"
add_polygon(sketch11, [(3.74819, 0.613059), (3.74819, -0.352141), (3.11319, -0.352141), (3.11319, 0.613059)])
sketch11.addConstraint([
    Sketcher.Constraint("Vertical", 0),
    Sketcher.Constraint("Horizontal", 1),
    Sketcher.Constraint("Vertical", 2),
    Sketcher.Constraint("Horizontal", 3),
    Sketcher.Constraint("DistanceX", 1, 2, 1, 1, Q("0.025 in")),
    Sketcher.Constraint("DistanceY", 0, 2, 0, 1, Q("0.038 in")),
    Sketcher.Constraint("DistanceX", -1, 1, 0, 2, 3.74819),
    Sketcher.Constraint("DistanceY", 0, 2, -1, 1, 0.352141),
])
sketch11.setExpression("Constraints[8]", "Params.sketch11_width")
sketch11.setExpression("Constraints[9]", "Params.sketch11_height")
pad10 = body9.newObject("PartDesign::Pad", "Pad009")
pad10.Profile = sketch11
pad10.setExpression("Length", "Params.pad10_length")
pad10.Reversed = True
body10 = doc.addObject("PartDesign::Body", "Body009")

sketch12 = body10.newObject("Sketcher::SketchObject", "Sketch011")
sketch12.AttachmentSupport = (doc.getObject("XY_Plane009"), [""])
sketch12.MapMode = "FlatFace"
add_polygon(sketch12, [(-3.9751, 7.088945), (-3.9751, 5.310945), (-4.9911, 5.310945), (-4.9911, 7.088945)])
sketch12.addConstraint([
    Sketcher.Constraint("Vertical", 0),
    Sketcher.Constraint("Horizontal", 1),
    Sketcher.Constraint("Vertical", 2),
    Sketcher.Constraint("Horizontal", 3),
    Sketcher.Constraint("DistanceX", 1, 2, 1, 1, Q("0.04 in")),
    Sketcher.Constraint("DistanceY", 0, 2, 0, 1, Q("0.07 in")),
    Sketcher.Constraint("DistanceX", 0, 2, -1, 1, Q("0.1565 in")),
    Sketcher.Constraint("DistanceY", -1, 1, 0, 2, 5.310945),
])
sketch12.setExpression("Constraints[8]", "Params.sketch12_width")
sketch12.setExpression("Constraints[9]", "Params.sketch12_height")
pad11 = body10.newObject("PartDesign::Pad", "Pad010")
pad11.Profile = sketch12
pad11.setExpression("Length", "Params.pad11_length")
pad11.Reversed = True
body11 = doc.addObject("PartDesign::Body", "Body010")

sketch13 = body11.newObject("Sketcher::SketchObject", "Sketch012")
sketch13.AttachmentSupport = (doc.getObject("XY_Plane010"), [""])
sketch13.MapMode = "FlatFace"
add_polygon(sketch13, [(0.254, 11.2522), (0.254, 10.2362), (-1.524, 10.2362), (-1.524, 11.2522)])
sketch13.addConstraint([
    Sketcher.Constraint("Vertical", 0),
    Sketcher.Constraint("Horizontal", 1),
    Sketcher.Constraint("Vertical", 2),
    Sketcher.Constraint("Horizontal", 3),
    Sketcher.Constraint("DistanceX", 1, 2, 1, 1, Q("0.07 in")),
    Sketcher.Constraint("DistanceY", 0, 2, 0, 1, Q("0.04 in")),
    Sketcher.Constraint("DistanceX", -1, 1, 0, 2, Q("0.01 in")),
    Sketcher.Constraint("DistanceY", -1, 1, 0, 2, Q("0.403 in")),
])
sketch13.setExpression("Constraints[8]", "Params.sketch13_width")
sketch13.setExpression("Constraints[9]", "Params.sketch13_height")
pad12 = body11.newObject("PartDesign::Pad", "Pad011")
pad12.Profile = sketch13
pad12.setExpression("Length", "Params.pad12_length")
pad12.Reversed = True
body12 = doc.addObject("PartDesign::Body", "Body011")

sketch14 = body12.newObject("Sketcher::SketchObject", "Sketch013")
sketch14.AttachmentSupport = (doc.getObject("XY_Plane011"), [""])
sketch14.MapMode = "FlatFace"
add_polygon(sketch14, [(4.9911, 8.104945), (4.9911, 6.326945), (3.9751, 6.326945), (3.9751, 8.104945)])
sketch14.addConstraint([
    Sketcher.Constraint("Vertical", 0),
    Sketcher.Constraint("Horizontal", 1),
    Sketcher.Constraint("Vertical", 2),
    Sketcher.Constraint("Horizontal", 3),
    Sketcher.Constraint("DistanceX", 1, 2, 1, 1, Q("0.04 in")),
    Sketcher.Constraint("DistanceY", 0, 2, 0, 1, Q("0.07 in")),
    Sketcher.Constraint("DistanceX", -1, 1, 0, 2, Q("0.1965 in")),
    Sketcher.Constraint("DistanceY", -1, 1, 0, 2, 6.326945),
])
sketch14.setExpression("Constraints[8]", "Params.sketch14_width")
sketch14.setExpression("Constraints[9]", "Params.sketch14_height")
pad13 = body12.newObject("PartDesign::Pad", "Pad012")
pad13.Profile = sketch14
pad13.setExpression("Length", "Params.pad13_length")
pad13.Reversed = True
doc.recompute()

boolean = body.newObject("PartDesign::Boolean", "Boolean")
boolean.Type = "Fuse"
boolean.addObjects([body2])
doc.recompute()

boolean2 = body.newObject("PartDesign::Boolean", "Boolean001")
boolean2.Type = "Fuse"
boolean2.addObjects([body11])
doc.recompute()

boolean3 = body.newObject("PartDesign::Boolean", "Boolean002")
boolean3.Type = "Fuse"
boolean3.addObjects([body12])
doc.recompute()

boolean4 = body.newObject("PartDesign::Boolean", "Boolean003")
boolean4.Type = "Fuse"
boolean4.addObjects([body10])
doc.recompute()

boolean5 = body.newObject("PartDesign::Boolean", "Boolean004")
boolean5.Type = "Fuse"
boolean5.addObjects([body9])
doc.recompute()

boolean6 = body.newObject("PartDesign::Boolean", "Boolean005")
boolean6.Type = "Fuse"
boolean6.addObjects([body6])
doc.recompute()

boolean7 = body.newObject("PartDesign::Boolean", "Boolean006")
boolean7.Type = "Fuse"
boolean7.addObjects([body7])
doc.recompute()

boolean8 = body.newObject("PartDesign::Boolean", "Boolean007")
boolean8.Type = "Fuse"
boolean8.addObjects([body5])
doc.recompute()

boolean9 = body.newObject("PartDesign::Boolean", "Boolean008")
boolean9.Type = "Fuse"
boolean9.addObjects([body4])
doc.recompute()

boolean10 = body.newObject("PartDesign::Boolean", "Boolean009")
boolean10.Type = "Fuse"
boolean10.addObjects([body3])
doc.recompute()

boolean11 = body.newObject("PartDesign::Boolean", "Boolean010")
boolean11.Type = "Fuse"
boolean11.addObjects([body8])

doc.recompute()
